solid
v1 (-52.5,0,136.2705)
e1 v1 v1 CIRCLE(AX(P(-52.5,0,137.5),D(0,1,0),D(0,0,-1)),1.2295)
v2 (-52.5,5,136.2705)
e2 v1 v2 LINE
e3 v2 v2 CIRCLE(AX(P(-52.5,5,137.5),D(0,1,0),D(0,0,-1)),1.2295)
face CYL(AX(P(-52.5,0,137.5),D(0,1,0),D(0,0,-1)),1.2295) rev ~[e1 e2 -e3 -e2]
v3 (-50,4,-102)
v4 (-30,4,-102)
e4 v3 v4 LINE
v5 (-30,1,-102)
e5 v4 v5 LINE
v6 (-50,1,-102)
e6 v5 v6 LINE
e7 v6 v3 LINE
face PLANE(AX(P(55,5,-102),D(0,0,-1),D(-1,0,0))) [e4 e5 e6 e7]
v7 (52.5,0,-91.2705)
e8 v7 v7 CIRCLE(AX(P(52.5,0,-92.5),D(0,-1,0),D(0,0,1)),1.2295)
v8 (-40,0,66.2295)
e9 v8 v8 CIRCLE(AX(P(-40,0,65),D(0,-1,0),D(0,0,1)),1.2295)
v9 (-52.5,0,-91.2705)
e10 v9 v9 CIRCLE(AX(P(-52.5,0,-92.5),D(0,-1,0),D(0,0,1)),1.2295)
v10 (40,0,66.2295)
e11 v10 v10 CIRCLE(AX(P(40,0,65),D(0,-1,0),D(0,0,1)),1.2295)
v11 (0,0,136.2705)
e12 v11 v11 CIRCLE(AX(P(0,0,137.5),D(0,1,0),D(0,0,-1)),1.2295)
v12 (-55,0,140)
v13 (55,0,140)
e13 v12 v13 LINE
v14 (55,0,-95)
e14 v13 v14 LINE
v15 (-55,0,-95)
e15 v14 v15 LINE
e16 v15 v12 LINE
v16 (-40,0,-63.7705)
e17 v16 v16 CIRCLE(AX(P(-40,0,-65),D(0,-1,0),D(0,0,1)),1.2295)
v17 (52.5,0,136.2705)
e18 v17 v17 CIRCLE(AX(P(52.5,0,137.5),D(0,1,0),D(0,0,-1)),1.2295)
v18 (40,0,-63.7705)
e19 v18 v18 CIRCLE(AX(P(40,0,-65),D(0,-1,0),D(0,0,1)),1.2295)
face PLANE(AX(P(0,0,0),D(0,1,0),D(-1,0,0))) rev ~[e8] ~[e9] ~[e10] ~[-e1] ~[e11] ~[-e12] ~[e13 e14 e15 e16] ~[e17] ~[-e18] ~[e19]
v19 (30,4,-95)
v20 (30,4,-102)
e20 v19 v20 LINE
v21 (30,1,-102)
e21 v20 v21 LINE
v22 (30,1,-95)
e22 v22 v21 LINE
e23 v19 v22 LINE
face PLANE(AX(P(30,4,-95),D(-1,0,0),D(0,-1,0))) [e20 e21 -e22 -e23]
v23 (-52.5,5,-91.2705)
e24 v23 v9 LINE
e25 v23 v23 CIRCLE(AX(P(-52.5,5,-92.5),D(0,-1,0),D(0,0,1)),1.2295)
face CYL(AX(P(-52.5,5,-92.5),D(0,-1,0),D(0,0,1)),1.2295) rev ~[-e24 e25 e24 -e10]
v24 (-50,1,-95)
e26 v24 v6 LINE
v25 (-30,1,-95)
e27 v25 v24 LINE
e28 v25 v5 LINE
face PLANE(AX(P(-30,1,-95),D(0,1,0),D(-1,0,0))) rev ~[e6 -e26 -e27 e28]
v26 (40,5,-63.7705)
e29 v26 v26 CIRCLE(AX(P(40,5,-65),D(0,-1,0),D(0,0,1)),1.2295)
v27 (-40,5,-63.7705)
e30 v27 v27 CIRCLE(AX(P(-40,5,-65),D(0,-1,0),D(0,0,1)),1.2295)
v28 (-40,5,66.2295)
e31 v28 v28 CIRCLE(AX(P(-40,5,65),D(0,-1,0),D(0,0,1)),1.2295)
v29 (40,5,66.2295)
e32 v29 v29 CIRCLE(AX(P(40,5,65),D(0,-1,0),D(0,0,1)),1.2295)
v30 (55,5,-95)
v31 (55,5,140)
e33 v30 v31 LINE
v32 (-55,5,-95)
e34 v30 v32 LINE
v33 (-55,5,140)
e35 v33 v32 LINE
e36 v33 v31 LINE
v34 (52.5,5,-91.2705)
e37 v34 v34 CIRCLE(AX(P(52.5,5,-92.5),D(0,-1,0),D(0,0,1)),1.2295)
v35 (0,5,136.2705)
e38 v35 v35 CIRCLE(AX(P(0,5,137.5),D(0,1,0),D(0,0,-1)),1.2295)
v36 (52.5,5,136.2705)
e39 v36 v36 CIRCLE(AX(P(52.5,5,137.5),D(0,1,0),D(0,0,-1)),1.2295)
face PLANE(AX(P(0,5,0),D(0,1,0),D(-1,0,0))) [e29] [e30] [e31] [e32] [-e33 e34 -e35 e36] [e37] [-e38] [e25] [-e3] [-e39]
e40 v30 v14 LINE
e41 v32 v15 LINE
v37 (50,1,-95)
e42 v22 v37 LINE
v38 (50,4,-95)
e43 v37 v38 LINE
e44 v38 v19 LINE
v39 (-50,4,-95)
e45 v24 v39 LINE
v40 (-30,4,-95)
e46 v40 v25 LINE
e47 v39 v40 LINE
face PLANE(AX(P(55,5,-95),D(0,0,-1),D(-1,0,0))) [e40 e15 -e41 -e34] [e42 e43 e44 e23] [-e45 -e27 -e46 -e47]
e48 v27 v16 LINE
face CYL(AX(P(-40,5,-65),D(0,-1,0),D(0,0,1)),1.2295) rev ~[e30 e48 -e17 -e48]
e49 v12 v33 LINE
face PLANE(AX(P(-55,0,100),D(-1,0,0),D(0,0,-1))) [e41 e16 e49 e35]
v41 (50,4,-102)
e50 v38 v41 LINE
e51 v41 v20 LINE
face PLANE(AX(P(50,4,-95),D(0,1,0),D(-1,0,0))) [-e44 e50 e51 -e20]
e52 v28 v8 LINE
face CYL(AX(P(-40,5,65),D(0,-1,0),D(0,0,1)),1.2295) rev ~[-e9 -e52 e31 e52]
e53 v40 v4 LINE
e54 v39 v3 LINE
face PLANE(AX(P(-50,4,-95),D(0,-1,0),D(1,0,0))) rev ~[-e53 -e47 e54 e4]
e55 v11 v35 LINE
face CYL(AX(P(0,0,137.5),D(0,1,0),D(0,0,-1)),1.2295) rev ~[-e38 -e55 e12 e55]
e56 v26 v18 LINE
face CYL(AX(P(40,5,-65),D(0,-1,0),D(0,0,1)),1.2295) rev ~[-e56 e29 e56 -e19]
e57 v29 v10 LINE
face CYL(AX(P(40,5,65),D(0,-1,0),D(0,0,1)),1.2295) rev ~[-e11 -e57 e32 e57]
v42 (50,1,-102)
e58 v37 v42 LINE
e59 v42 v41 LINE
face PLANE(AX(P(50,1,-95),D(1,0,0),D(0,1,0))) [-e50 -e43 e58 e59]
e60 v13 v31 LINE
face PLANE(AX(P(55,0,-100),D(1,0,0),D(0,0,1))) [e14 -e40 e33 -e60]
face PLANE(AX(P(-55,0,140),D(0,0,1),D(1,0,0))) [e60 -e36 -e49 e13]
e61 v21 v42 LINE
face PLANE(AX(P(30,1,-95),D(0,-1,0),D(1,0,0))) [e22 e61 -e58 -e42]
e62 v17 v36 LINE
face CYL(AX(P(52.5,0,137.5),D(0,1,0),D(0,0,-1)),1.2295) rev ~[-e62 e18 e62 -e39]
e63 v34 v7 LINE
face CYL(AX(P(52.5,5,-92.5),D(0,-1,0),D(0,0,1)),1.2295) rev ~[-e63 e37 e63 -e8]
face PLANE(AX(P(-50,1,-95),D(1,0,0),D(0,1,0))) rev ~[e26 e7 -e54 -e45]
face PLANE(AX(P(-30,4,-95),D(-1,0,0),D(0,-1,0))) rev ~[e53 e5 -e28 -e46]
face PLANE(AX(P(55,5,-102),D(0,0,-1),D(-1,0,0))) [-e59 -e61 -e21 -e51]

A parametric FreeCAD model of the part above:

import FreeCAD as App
import Part
import Sketcher
from FreeCAD import Vector

doc = App.newDocument("Part")
params = doc.addObject("Spreadsheet::Sheet", "Params")
for row, (alias, value) in enumerate([
    ("sketch1_width", "110 mm"),
    ("sketch1_height", "200 mm"),
    ("pad1_length", "5 mm"),
    ("sketch2_width", "110 mm"),
    ("sketch2_height", "5 mm"),
    ("pad2_length", "40 mm"),
    ("hole_diameter", "2.459 mm"),
    ("hole2_diameter", "2.459 mm"),
    ("hole3_diameter", "2.459 mm"),
    ("sketch6_height", "5 mm"),
    ("sketch6_width", "110 mm"),
    ("pocket1_length", "10 mm"),
    ("hole4_diameter", "2.459 mm"),
    ("sketch8_width", "20 mm"),
    ("sketch8_height", "3 mm"),
    ("pad3_length", "7 mm"),
], start=1):
    params.set(f"A{row}", alias)
    params.set(f"B{row}", "=" + value)
    params.setAlias(f"B{row}", alias)

body = doc.addObject("PartDesign::Body", "Body")

# Sketch on XZ plane
sketch1 = body.newObject("Sketcher::SketchObject", "Sketch")
sketch1.AttachmentSupport = (doc.getObject("XZ_Plane"), [""])
sketch1.MapMode = "FlatFace"
sketch1.addGeometry(Part.LineSegment(Vector(55, -100, 0), Vector(-55, -100, 0)), False)
sketch1.addGeometry(Part.LineSegment(Vector(-55, -100, 0), Vector(-55, 100, 0)), False)
sketch1.addGeometry(Part.LineSegment(Vector(-55, 100, 0), Vector(55, 100, 0)), False)
sketch1.addGeometry(Part.LineSegment(Vector(55, 100, 0), Vector(55, -100, 0)), False)
sketch1.addConstraint(Sketcher.Constraint("Coincident", 0, 2, 1, 1))
sketch1.addConstraint(Sketcher.Constraint("Coincident", 1, 2, 2, 1))
sketch1.addConstraint(Sketcher.Constraint("Coincident", 2, 2, 3, 1))
sketch1.addConstraint(Sketcher.Constraint("Coincident", 3, 2, 0, 1))
sketch1.addConstraint(Sketcher.Constraint("Horizontal", 0))
sketch1.addConstraint(Sketcher.Constraint("Vertical", 1))
sketch1.addConstraint(Sketcher.Constraint("Horizontal", 2))
sketch1.addConstraint(Sketcher.Constraint("Vertical", 3))
sketch1.addConstraint(Sketcher.Constraint("Symmetric", 0, 2, 2, 2, -1, 1))
sketch1.addConstraint(Sketcher.Constraint("DistanceX", 0, 2, 0, 1, 110.0))
sketch1.addConstraint(Sketcher.Constraint("DistanceY", 1, 1, 1, 2, 200.0))
sketch1.setExpression("Constraints[9]", "Params.sketch1_width")
sketch1.setExpression("Constraints[10]", "Params.sketch1_height")
pad1 = body.newObject("PartDesign::Pad", "Pad")
pad1.Profile = sketch1
pad1.setExpression("Length", "Params.pad1_length")
pad1.Reversed = True

# Sketch on XY plane
sketch2 = body.newObject("Sketcher::SketchObject", "Sketch001")
sketch2.AttachmentSupport = (doc.getObject("XY_Plane"), [""])
sketch2.MapMode = "FlatFace"
sketch2.AttachmentOffset = App.Placement(Vector(0, 0, 100), App.Rotation())
sketch2.addGeometry(Part.LineSegment(Vector(-55, 5, 0), Vector(-55, 0, 0)), False)
sketch2.addGeometry(Part.LineSegment(Vector(-55, 0, 0), Vector(55, 0, 0)), False)
sketch2.addGeometry(Part.LineSegment(Vector(55, 0, 0), Vector(55, 5, 0)), False)
sketch2.addGeometry(Part.LineSegment(Vector(55, 5, 0), Vector(-55, 5, 0)), False)
sketch2.addConstraint(Sketcher.Constraint("Coincident", 0, 2, 1, 1))
sketch2.addConstraint(Sketcher.Constraint("Coincident", 1, 2, 2, 1))
sketch2.addConstraint(Sketcher.Constraint("Coincident", 2, 2, 3, 1))
sketch2.addConstraint(Sketcher.Constraint("Coincident", 3, 2, 0, 1))
sketch2.addConstraint(Sketcher.Constraint("Vertical", 0))
sketch2.addConstraint(Sketcher.Constraint("Horizontal", 1))
sketch2.addConstraint(Sketcher.Constraint("Vertical", 2))
sketch2.addConstraint(Sketcher.Constraint("Horizontal", 3))
sketch2.addConstraint(Sketcher.Constraint("Symmetric", 0, 2, 1, 2, -1, 1))
sketch2.addConstraint(Sketcher.Constraint("DistanceX", 1, 1, 1, 2, 110.0))
sketch2.addConstraint(Sketcher.Constraint("DistanceY", 0, 2, 0, 1, 5.0))
sketch2.setExpression("Constraints[9]", "Params.sketch2_width")
sketch2.setExpression("Constraints[10]", "Params.sketch2_height")
pad2 = body.newObject("PartDesign::Pad", "Pad001")
pad2.Profile = sketch2
pad2.setExpression("Length", "Params.pad2_length")

# Sketch on XZ plane
sketch3 = body.newObject("Sketcher::SketchObject", "Sketch002")
sketch3.AttachmentSupport = (doc.getObject("XZ_Plane"), [""])
sketch3.MapMode = "FlatFace"
sketch3.addGeometry(Part.Circle(Vector(52.5, -97.5, 0), Vector(0, 0, 1), 1.2295), False)
sketch3.addGeometry(Part.Circle(Vector(-52.5, -97.5, 0), Vector(0, 0, 1), 1.2295), False)
sketch3.addGeometry(Part.Circle(Vector(-52.5, 137.5, 0), Vector(0, 0, 1), 1.2295), False)
sketch3.addGeometry(Part.Circle(Vector(52.5, 137.5, 0), Vector(0, 0, 1), 1.2295), False)
sketch3.addConstraint(Sketcher.Constraint("Equal", 0, 1))
sketch3.addConstraint(Sketcher.Constraint("Equal", 1, 2))
sketch3.addConstraint(Sketcher.Constraint("Equal", 2, 3))
sketch3.addConstraint(Sketcher.Constraint("Symmetric", 0, 3, 1, 3, -2))
sketch3.addConstraint(Sketcher.Constraint("Symmetric", 2, 3, 3, 3, -2))
sketch3.addConstraint(Sketcher.Constraint("Vertical", 1, 3, 2, 3))
sketch3.addConstraint(Sketcher.Constraint("Diameter", 0, 2.459))
sketch3.addConstraint(Sketcher.Constraint("DistanceX", 1, 3, 0, 3, 105.0))
sketch3.addConstraint(Sketcher.Constraint("DistanceY", 1, 3, 2, 3, 235.0))
sketch3.addConstraint(Sketcher.Constraint("DistanceY", 0, 3, -1, 1, 97.5))
doc.recompute()
hole = body.newObject("PartDesign::Hole", "Hole")
hole.Profile = sketch3
hole.ThreadType = "None"
hole.setExpression("Diameter", "Params.hole_diameter")
hole.DepthType = "ThroughAll"

# Sketch on XZ plane
sketch4 = body.newObject("Sketcher::SketchObject", "Sketch003")
sketch4.AttachmentSupport = (doc.getObject("XZ_Plane"), [""])
sketch4.MapMode = "FlatFace"
sketch4.AttachmentOffset = App.Placement(Vector(0, 0, -5), App.Rotation())
sketch4.addGeometry(Part.Circle(Vector(-40, -65, 0), Vector(0, 0, 1), 1.2295), False)
sketch4.addGeometry(Part.Circle(Vector(40, -65, 0), Vector(0, 0, 1), 1.2295), False)
sketch4.addGeometry(Part.Circle(Vector(40, 65, 0), Vector(0, 0, 1), 1.2295), False)
sketch4.addGeometry(Part.Circle(Vector(-40, 65, 0), Vector(0, 0, 1), 1.2295), False)
sketch4.addConstraint(Sketcher.Constraint("Equal", 0, 1))
sketch4.addConstraint(Sketcher.Constraint("Equal", 1, 2))
sketch4.addConstraint(Sketcher.Constraint("Equal", 2, 3))
sketch4.addConstraint(Sketcher.Constraint("Symmetric", 0, 3, 2, 3, -1, 1))
sketch4.addConstraint(Sketcher.Constraint("Symmetric", 1, 3, 3, 3, -1, 1))
sketch4.addConstraint(Sketcher.Constraint("Symmetric", 0, 3, 1, 3, -2))
sketch4.addConstraint(Sketcher.Constraint("Diameter", 0, 2.459))
sketch4.addConstraint(Sketcher.Constraint("DistanceX", 0, 3, -1, 1, 40.0))
sketch4.addConstraint(Sketcher.Constraint("DistanceY", 0, 3, -1, 1, 65.0))
doc.recompute()
hole2 = body.newObject("PartDesign::Hole", "Hole001")
hole2.Profile = sketch4
hole2.ThreadType = "None"
hole2.setExpression("Diameter", "Params.hole2_diameter")
hole2.DepthType = "ThroughAll"
hole2.Reversed = True

# Sketch on XZ plane
sketch5 = body.newObject("Sketcher::SketchObject", "Sketch004")
sketch5.AttachmentSupport = (doc.getObject("XZ_Plane"), [""])
sketch5.MapMode = "FlatFace"
sketch5.addGeometry(Part.Circle(Vector(87.5, 0, 0), Vector(0, 0, 1), 1.2295), False)
sketch5.addGeometry(Part.Circle(Vector(0, 137.5, 0), Vector(0, 0, 1), 1.2295), False)
sketch5.addGeometry(Part.Circle(Vector(-87.5, 0, 0), Vector(0, 0, 1), 1.2295), False)
sketch5.addGeometry(Part.Circle(Vector(0, -97.5, 0), Vector(0, 0, 1), 1.2295), False)
sketch5.addConstraint(Sketcher.Constraint("Equal", 0, 1))
sketch5.addConstraint(Sketcher.Constraint("Equal", 1, 2))
sketch5.addConstraint(Sketcher.Constraint("Equal", 2, 3))
sketch5.addConstraint(Sketcher.Constraint("Symmetric", 0, 3, 2, 3, -1, 1))
sketch5.addConstraint(Sketcher.Constraint("PointOnObject", 0, 3, -1))
sketch5.addConstraint(Sketcher.Constraint("PointOnObject", 1, 3, -2))
sketch5.addConstraint(Sketcher.Constraint("PointOnObject", 3, 3, -2))
sketch5.addConstraint(Sketcher.Constraint("Diameter", 0, 2.459))
sketch5.addConstraint(Sketcher.Constraint("DistanceX", 2, 3, 0, 3, 175.0))
sketch5.addConstraint(Sketcher.Constraint("DistanceY", 3, 3, 1, 3, 235.0))
sketch5.addConstraint(Sketcher.Constraint("DistanceY", -1, 1, 1, 3, 137.5))
doc.recompute()
hole3 = body.newObject("PartDesign::Hole", "Hole002")
hole3.Profile = sketch5
hole3.ThreadType = "None"
hole3.setExpression("Diameter", "Params.hole3_diameter")
hole3.DepthType = "ThroughAll"

# Sketch on XZ plane
sketch6 = body.newObject("Sketcher::SketchObject", "Sketch005")
sketch6.AttachmentSupport = (doc.getObject("XZ_Plane"), [""])
sketch6.MapMode = "FlatFace"
sketch6.AttachmentOffset = App.Placement(Vector(0, 0, -5), App.Rotation())
sketch6.addGeometry(Part.LineSegment(Vector(55, -95, 0), Vector(55, -100, 0)), False)
sketch6.addGeometry(Part.LineSegment(Vector(55, -100, 0), Vector(-55, -100, 0)), False)
sketch6.addGeometry(Part.LineSegment(Vector(-55, -100, 0), Vector(-55, -95, 0)), False)
sketch6.addGeometry(Part.LineSegment(Vector(-55, -95, 0), Vector(55, -95, 0)), False)
sketch6.addConstraint(Sketcher.Constraint("Coincident", 0, 2, 1, 1))
sketch6.addConstraint(Sketcher.Constraint("Coincident", 1, 2, 2, 1))
sketch6.addConstraint(Sketcher.Constraint("Coincident", 2, 2, 3, 1))
sketch6.addConstraint(Sketcher.Constraint("Coincident", 3, 2, 0, 1))
sketch6.addConstraint(Sketcher.Constraint("Vertical", 0))
sketch6.addConstraint(Sketcher.Constraint("Horizontal", 1))
sketch6.addConstraint(Sketcher.Constraint("Vertical", 2))
sketch6.addConstraint(Sketcher.Constraint("Horizontal", 3))
sketch6.addConstraint(Sketcher.Constraint("DistanceY", 0, 2, 0, 1, 5.0))
sketch6.addConstraint(Sketcher.Constraint("DistanceX", 1, 2, 1, 1, 110.0))
sketch6.addConstraint(Sketcher.Constraint("DistanceX", -1, 1, 0, 2, 55.0))
sketch6.addConstraint(Sketcher.Constraint("DistanceY", 0, 2, -1, 1, 100.0))
sketch6.setExpression("Constraints[8]", "Params.sketch6_height")
sketch6.setExpression("Constraints[9]", "Params.sketch6_width")
pocket1 = body.newObject("PartDesign::Pocket", "Pocket")
pocket1.Profile = sketch6
pocket1.setExpression("Length", "Params.pocket1_length")
pocket1.Reversed = True

# Sketch on XZ plane
sketch7 = body.newObject("Sketcher::SketchObject", "Sketch006")
sketch7.AttachmentSupport = (doc.getObject("XZ_Plane"), [""])
sketch7.MapMode = "FlatFace"
sketch7.AttachmentOffset = App.Placement(Vector(0, 0, -5), App.Rotation())
sketch7.addGeometry(Part.Circle(Vector(-52.5, -92.5, 0), Vector(0, 0, 1), 1.2295), False)
sketch7.addGeometry(Part.Circle(Vector(52.5, -92.5, 0), Vector(0, 0, 1), 1.2295), False)
sketch7.addConstraint(Sketcher.Constraint("Equal", 0, 1))
sketch7.addConstraint(Sketcher.Constraint("Symmetric", 0, 3, 1, 3, -2))
sketch7.addConstraint(Sketcher.Constraint("Diameter", 0, 2.459))
sketch7.addConstraint(Sketcher.Constraint("DistanceX", 0, 3, 1, 3, 105.0))
sketch7.addConstraint(Sketcher.Constraint("DistanceY", 0, 3, -1, 1, 92.5))
doc.recompute()
hole4 = body.newObject("PartDesign::Hole", "Hole003")
hole4.Profile = sketch7
hole4.ThreadType = "None"
hole4.setExpression("Diameter", "Params.hole4_diameter")
hole4.DepthType = "ThroughAll"
hole4.Reversed = True

# Sketch on XY plane
sketch8 = body.newObject("Sketcher::SketchObject", "Sketch007")
sketch8.AttachmentSupport = (doc.getObject("XY_Plane"), [""])
sketch8.MapMode = "FlatFace"
sketch8.AttachmentOffset = App.Placement(Vector(0, 0, -95), App.Rotation())
sketch8.addGeometry(Part.LineSegment(Vector(-50, 1, 0), Vector(-50, 4, 0)), False)
sketch8.addGeometry(Part.LineSegment(Vector(-50, 4, 0), Vector(-30, 4, 0)), False)
sketch8.addGeometry(Part.LineSegment(Vector(-30, 4, 0), Vector(-30, 1, 0)), False)
sketch8.addGeometry(Part.LineSegment(Vector(-30, 1, 0), Vector(-50, 1, 0)), False)
sketch8.addGeometry(Part.LineSegment(Vector(30, 4, 0), Vector(50, 4, 0)), False)
sketch8.addGeometry(Part.LineSegment(Vector(50, 4, 0), Vector(50, 1, 0)), False)
sketch8.addGeometry(Part.LineSegment(Vector(50, 1, 0), Vector(30, 1, 0)), False)
sketch8.addGeometry(Part.LineSegment(Vector(30, 1, 0), Vector(30, 4, 0)), False)
sketch8.addConstraint(Sketcher.Constraint("Coincident", 0, 2, 1, 1))
sketch8.addConstraint(Sketcher.Constraint("Coincident", 1, 2, 2, 1))
sketch8.addConstraint(Sketcher.Constraint("Coincident", 2, 2, 3, 1))
sketch8.addConstraint(Sketcher.Constraint("Coincident", 3, 2, 0, 1))
sketch8.addConstraint(Sketcher.Constraint("Coincident", 4, 2, 5, 1))
sketch8.addConstraint(Sketcher.Constraint("Coincident", 5, 2, 6, 1))
sketch8.addConstraint(Sketcher.Constraint("Coincident", 6, 2, 7, 1))
sketch8.addConstraint(Sketcher.Constraint("Coincident", 7, 2, 4, 1))
sketch8.addConstraint(Sketcher.Constraint("Vertical", 0))
sketch8.addConstraint(Sketcher.Constraint("Horizontal", 1))
sketch8.addConstraint(Sketcher.Constraint("Vertical", 2))
sketch8.addConstraint(Sketcher.Constraint("Horizontal", 3))
sketch8.addConstraint(Sketcher.Constraint("Horizontal", 4))
sketch8.addConstraint(Sketcher.Constraint("Vertical", 5))
sketch8.addConstraint(Sketcher.Constraint("Horizontal", 6))
sketch8.addConstraint(Sketcher.Constraint("Vertical", 7))
sketch8.addConstraint(Sketcher.Constraint("Symmetric", 0, 2, 4, 2, -2))
sketch8.addConstraint(Sketcher.Constraint("Symmetric", 2, 2, 6, 2, -2))
sketch8.addConstraint(Sketcher.Constraint("DistanceX", 1, 1, 1, 2, 20.0))
sketch8.addConstraint(Sketcher.Constraint("DistanceY", 0, 1, 0, 2, 3.0))
sketch8.addConstraint(Sketcher.Constraint("DistanceY", -1, 1, 2, 2, 1.0))
sketch8.addConstraint(Sketcher.Constraint("DistanceX", 0, 2, -1, 1, 50.0))
sketch8.setExpression("Constraints[18]", "Params.sketch8_width")
sketch8.setExpression("Constraints[19]", "Params.sketch8_height")
pad3 = body.newObject("PartDesign::Pad", "Pad002")
pad3.Profile = sketch8
pad3.setExpression("Length", "Params.pad3_length")
pad3.Reversed = True

doc.recompute()
